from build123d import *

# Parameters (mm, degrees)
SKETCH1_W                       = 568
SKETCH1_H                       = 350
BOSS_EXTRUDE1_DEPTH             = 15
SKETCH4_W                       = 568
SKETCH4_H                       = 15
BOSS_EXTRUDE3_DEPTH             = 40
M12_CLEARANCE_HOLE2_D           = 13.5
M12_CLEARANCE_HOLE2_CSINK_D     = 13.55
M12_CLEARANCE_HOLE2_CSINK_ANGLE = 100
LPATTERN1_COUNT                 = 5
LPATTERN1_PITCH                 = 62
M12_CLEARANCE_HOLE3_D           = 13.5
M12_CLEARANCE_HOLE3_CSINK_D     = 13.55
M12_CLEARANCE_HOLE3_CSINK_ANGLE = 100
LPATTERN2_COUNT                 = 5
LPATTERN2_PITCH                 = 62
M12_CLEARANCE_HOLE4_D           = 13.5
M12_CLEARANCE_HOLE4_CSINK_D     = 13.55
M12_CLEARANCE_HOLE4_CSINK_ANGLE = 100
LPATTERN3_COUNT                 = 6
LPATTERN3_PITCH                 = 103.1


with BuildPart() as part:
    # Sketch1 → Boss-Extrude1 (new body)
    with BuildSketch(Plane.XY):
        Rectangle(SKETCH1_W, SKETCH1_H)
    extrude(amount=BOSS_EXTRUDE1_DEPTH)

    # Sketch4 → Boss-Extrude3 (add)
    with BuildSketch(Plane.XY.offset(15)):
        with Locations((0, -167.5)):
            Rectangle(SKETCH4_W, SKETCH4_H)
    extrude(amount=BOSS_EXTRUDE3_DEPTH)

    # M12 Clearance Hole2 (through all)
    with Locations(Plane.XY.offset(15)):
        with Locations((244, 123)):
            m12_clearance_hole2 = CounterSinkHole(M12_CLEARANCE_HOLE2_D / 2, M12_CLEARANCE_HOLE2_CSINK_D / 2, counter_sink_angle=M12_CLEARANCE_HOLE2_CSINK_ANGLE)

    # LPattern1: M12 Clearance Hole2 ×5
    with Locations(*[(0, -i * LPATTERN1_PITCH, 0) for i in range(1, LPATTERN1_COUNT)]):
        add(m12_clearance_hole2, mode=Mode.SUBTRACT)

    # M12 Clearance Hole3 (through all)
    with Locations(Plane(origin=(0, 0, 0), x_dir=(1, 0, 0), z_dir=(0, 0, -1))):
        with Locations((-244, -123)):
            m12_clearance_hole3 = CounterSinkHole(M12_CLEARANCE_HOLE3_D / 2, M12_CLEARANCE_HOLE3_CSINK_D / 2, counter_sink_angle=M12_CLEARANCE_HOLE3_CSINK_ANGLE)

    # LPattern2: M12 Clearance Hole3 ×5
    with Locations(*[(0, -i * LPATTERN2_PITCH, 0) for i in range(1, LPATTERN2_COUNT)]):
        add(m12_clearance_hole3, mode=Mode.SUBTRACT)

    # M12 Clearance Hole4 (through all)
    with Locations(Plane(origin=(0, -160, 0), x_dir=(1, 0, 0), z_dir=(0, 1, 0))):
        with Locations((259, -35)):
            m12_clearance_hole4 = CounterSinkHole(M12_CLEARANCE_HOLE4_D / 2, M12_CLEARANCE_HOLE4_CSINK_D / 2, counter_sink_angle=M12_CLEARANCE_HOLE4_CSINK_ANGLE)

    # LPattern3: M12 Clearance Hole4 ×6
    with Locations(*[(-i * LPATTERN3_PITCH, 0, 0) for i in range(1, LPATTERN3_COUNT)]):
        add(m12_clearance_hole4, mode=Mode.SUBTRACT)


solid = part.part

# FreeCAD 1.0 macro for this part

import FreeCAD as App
import Part
import Sketcher

V = App.Vector


def add_polygon(sketch, points):
    """Adds a closed chain of lines whose ends are joined by coincident constraints."""
    first, n = sketch.GeometryCount, len(points)
    for a, b in zip(points, points[1:] + points[:1]):
        sketch.addGeometry(Part.LineSegment(App.Vector(*a, 0), App.Vector(*b, 0)), False)
    for i in range(n):
        sketch.addConstraint(Sketcher.Constraint("Coincident", first + i, 2, first + (i + 1) % n, 1))

doc = App.newDocument("Part")
body = doc.addObject("PartDesign::Body", "Body")

# Sketch on XY plane
sketch1 = body.newObject("Sketcher::SketchObject", "Sketch")
sketch1.AttachmentSupport = (doc.getObject("XY_Plane"), [""])
sketch1.MapMode = "FlatFace"
add_polygon(sketch1, [(-284, 175), (-284, -175), (284, -175), (284, 175)])  # lines 0-3
sketch1.addConstraint(Sketcher.Constraint("Vertical", 0))
sketch1.addConstraint(Sketcher.Constraint("Horizontal", 1))
sketch1.addConstraint(Sketcher.Constraint("Vertical", 2))
sketch1.addConstraint(Sketcher.Constraint("Horizontal", 3))
sketch1.addConstraint(Sketcher.Constraint("Symmetric", 0, 2, 2, 2, -1, 1))
sketch1.addConstraint(Sketcher.Constraint("DistanceX", 1, 1, 1, 2, 568.0))
sketch1.addConstraint(Sketcher.Constraint("DistanceY", 0, 2, 0, 1, 350.0))
pad1 = body.newObject("PartDesign::Pad", "Pad")
pad1.Profile = sketch1
pad1.Length = 15

# Sketch on XY plane
sketch2 = body.newObject("Sketcher::SketchObject", "Sketch001")
sketch2.AttachmentSupport = (doc.getObject("XY_Plane"), [""])
sketch2.MapMode = "FlatFace"
sketch2.AttachmentOffset = App.Placement(V(0, 0, 15), App.Rotation())
add_polygon(sketch2, [(-284, -160), (-284, -175), (284, -175), (284, -160)])  # lines 0-3
sketch2.addConstraint(Sketcher.Constraint("Vertical", 0))
sketch2.addConstraint(Sketcher.Constraint("Horizontal", 1))
sketch2.addConstraint(Sketcher.Constraint("Vertical", 2))
sketch2.addConstraint(Sketcher.Constraint("Horizontal", 3))
sketch2.addConstraint(Sketcher.Constraint("DistanceX", 1, 1, 1, 2, 568.0))
sketch2.addConstraint(Sketcher.Constraint("DistanceY", 0, 2, 0, 1, 15.0))
sketch2.addConstraint(Sketcher.Constraint("DistanceX", 0, 2, -1, 1, 284.0))
sketch2.addConstraint(Sketcher.Constraint("DistanceY", 0, 2, -1, 1, 175.0))
pad2 = body.newObject("PartDesign::Pad", "Pad001")
pad2.Profile = sketch2
pad2.Length = 40

# Sketch on XY plane
sketch3 = body.newObject("Sketcher::SketchObject", "Sketch002")
sketch3.AttachmentSupport = (doc.getObject("XY_Plane"), [""])
sketch3.MapMode = "FlatFace"
sketch3.AttachmentOffset = App.Placement(V(0, 0, 15), App.Rotation())
sketch3.addGeometry(Part.Circle(V(244, 123, 0), V(0, 0, 1), 7), False)
sketch3.addConstraint(Sketcher.Constraint("Diameter", 0, 13.5))
sketch3.addConstraint(Sketcher.Constraint("DistanceX", -1, 1, 0, 3, 244.0))
sketch3.addConstraint(Sketcher.Constraint("DistanceY", -1, 1, 0, 3, 123.0))
doc.recompute()
hole = body.newObject("PartDesign::Hole", "Hole")
hole.Profile = sketch3
hole.ThreadType = "None"
hole.Diameter = 13.5
hole.DepthType = "ThroughAll"
hole.HoleCutType = "Countersink"
hole.HoleCutDiameter = 13.55
hole.HoleCutCountersinkAngle = 100
doc.recompute()

linearpattern = body.newObject("PartDesign::LinearPattern", "LinearPattern")
linearpattern.Originals = [hole]
linearpattern.Direction = (doc.getObject("Y_Axis"), [""])
linearpattern.Mode = "offset"
linearpattern.Offset = 62
linearpattern.Occurrences = 5
linearpattern.Reversed = True
body.Tip = linearpattern

# Sketch on XY plane
sketch4 = body.newObject("Sketcher::SketchObject", "Sketch003")
sketch4.AttachmentSupport = (doc.getObject("XY_Plane"), [""])
sketch4.MapMode = "FlatFace"
sketch4.addGeometry(Part.Circle(V(-244, 123, 0), V(0, 0, 1), 7), False)
sketch4.addConstraint(Sketcher.Constraint("Diameter", 0, 13.5))
sketch4.addConstraint(Sketcher.Constraint("DistanceX", 0, 3, -1, 1, 244.0))
sketch4.addConstraint(Sketcher.Constraint("DistanceY", -1, 1, 0, 3, 123.0))
doc.recompute()
hole2 = body.newObject("PartDesign::Hole", "Hole001")
hole2.Profile = sketch4
hole2.ThreadType = "None"
hole2.Diameter = 13.5
hole2.DepthType = "ThroughAll"
hole2.HoleCutType = "Countersink"
hole2.HoleCutDiameter = 13.55
hole2.HoleCutCountersinkAngle = 100
hole2.Reversed = True
doc.recompute()

linearpattern2 = body.newObject("PartDesign::LinearPattern", "LinearPattern001")
linearpattern2.Originals = [hole2]
linearpattern2.Direction = (doc.getObject("Y_Axis"), [""])
linearpattern2.Mode = "offset"
linearpattern2.Offset = 62
linearpattern2.Occurrences = 5
linearpattern2.Reversed = True
body.Tip = linearpattern2

# Sketch on XZ plane
sketch5 = body.newObject("Sketcher::SketchObject", "Sketch004")
sketch5.AttachmentSupport = (doc.getObject("XZ_Plane"), [""])
sketch5.MapMode = "FlatFace"
sketch5.AttachmentOffset = App.Placement(V(0, 0, 160), App.Rotation())
sketch5.addGeometry(Part.Circle(V(259, 35, 0), V(0, 0, 1), 7), False)
sketch5.addConstraint(Sketcher.Constraint("Diameter", 0, 13.5))
sketch5.addConstraint(Sketcher.Constraint("DistanceX", -1, 1, 0, 3, 259.0))
sketch5.addConstraint(Sketcher.Constraint("DistanceY", -1, 1, 0, 3, 35.0))
doc.recompute()
hole3 = body.newObject("PartDesign::Hole", "Hole002")
hole3.Profile = sketch5
hole3.ThreadType = "None"
hole3.Diameter = 13.5
hole3.DepthType = "ThroughAll"
hole3.HoleCutType = "Countersink"
hole3.HoleCutDiameter = 13.55
hole3.HoleCutCountersinkAngle = 100
hole3.Reversed = True
doc.recompute()

linearpattern3 = body.newObject("PartDesign::LinearPattern", "LinearPattern002")
linearpattern3.Originals = [hole3]
linearpattern3.Direction = (doc.getObject("X_Axis"), [""])
linearpattern3.Mode = "offset"
linearpattern3.Offset = 103.1
linearpattern3.Occurrences = 6
linearpattern3.Reversed = True
body.Tip = linearpattern3

doc.recompute()
